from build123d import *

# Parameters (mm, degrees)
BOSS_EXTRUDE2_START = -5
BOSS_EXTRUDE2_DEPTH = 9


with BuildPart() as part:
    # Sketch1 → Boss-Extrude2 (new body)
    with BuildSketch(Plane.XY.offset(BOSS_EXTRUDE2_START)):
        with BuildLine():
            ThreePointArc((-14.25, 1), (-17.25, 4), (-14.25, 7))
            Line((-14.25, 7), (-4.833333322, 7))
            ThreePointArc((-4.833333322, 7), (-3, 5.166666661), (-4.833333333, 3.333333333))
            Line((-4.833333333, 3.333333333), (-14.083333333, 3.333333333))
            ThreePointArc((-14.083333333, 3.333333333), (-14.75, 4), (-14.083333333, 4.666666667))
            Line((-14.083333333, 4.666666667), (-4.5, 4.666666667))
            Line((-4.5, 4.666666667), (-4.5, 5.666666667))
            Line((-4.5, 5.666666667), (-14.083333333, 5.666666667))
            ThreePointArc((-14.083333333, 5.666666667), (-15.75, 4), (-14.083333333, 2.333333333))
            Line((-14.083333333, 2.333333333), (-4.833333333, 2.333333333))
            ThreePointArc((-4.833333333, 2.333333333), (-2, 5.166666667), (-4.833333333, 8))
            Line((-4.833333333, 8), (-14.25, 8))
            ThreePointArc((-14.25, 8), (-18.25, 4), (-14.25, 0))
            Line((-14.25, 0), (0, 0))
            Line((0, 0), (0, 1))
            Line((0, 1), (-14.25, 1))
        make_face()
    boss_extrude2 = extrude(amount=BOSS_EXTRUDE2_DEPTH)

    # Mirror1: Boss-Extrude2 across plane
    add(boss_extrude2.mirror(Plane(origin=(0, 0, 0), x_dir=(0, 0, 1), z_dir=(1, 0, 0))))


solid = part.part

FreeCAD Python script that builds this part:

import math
import FreeCAD as App
import Part
import Sketcher
Q = App.Units.Quantity

doc = App.newDocument("Part")
body = doc.addObject("PartDesign::Body", "Body")

sketch1 = body.newObject("Sketcher::SketchObject", "Sketch")
sketch1.AttachmentSupport = (doc.getObject("XY_Plane"), [""])
sketch1.MapMode = "FlatFace"
sketch1.AttachmentOffset = App.Placement(App.Vector(0, 0, -5), App.Rotation())
sketch1.addGeometry(Part.ArcOfCircle(Part.Circle(App.Vector(-14.25, 4, 0), App.Vector(0, 0, 1), 3), math.radians(90), math.radians(270)), False)
sketch1.addGeometry(Part.LineSegment(App.Vector(-14.25, 7, 0), App.Vector(-4.833333, 7, 0)), False)
sketch1.addGeometry(Part.ArcOfCircle(Part.Circle(App.Vector(-4.833333, 5.166667, 0), App.Vector(0, 0, 1), 1.833333), math.radians(-90), math.radians(90)), False)
sketch1.addGeometry(Part.LineSegment(App.Vector(-4.833333, 3.333333, 0), App.Vector(-14.083333, 3.333333, 0)), False)
sketch1.addGeometry(Part.ArcOfCircle(Part.Circle(App.Vector(-14.083333, 4, 0), App.Vector(0, 0, 1), 0.666667), math.radians(90), math.radians(270)), False)
sketch1.addGeometry(Part.LineSegment(App.Vector(-14.083333, 4.666667, 0), App.Vector(-4.5, 4.666667, 0)), False)
sketch1.addGeometry(Part.LineSegment(App.Vector(-4.5, 4.666667, 0), App.Vector(-4.5, 5.666667, 0)), False)
sketch1.addGeometry(Part.LineSegment(App.Vector(-4.5, 5.666667, 0), App.Vector(-14.083333, 5.666667, 0)), False)
sketch1.addGeometry(Part.ArcOfCircle(Part.Circle(App.Vector(-14.083333, 4, 0), App.Vector(0, 0, 1), 1.666667), math.radians(90), math.radians(270)), False)
sketch1.addGeometry(Part.LineSegment(App.Vector(-14.083333, 2.333333, 0), App.Vector(-4.833333, 2.333333, 0)), False)
sketch1.addGeometry(Part.ArcOfCircle(Part.Circle(App.Vector(-4.833333, 5.166667, 0), App.Vector(0, 0, 1), 2.833333), math.radians(-90), math.radians(90)), False)
sketch1.addGeometry(Part.LineSegment(App.Vector(-4.833333, 8, 0), App.Vector(-14.25, 8, 0)), False)
sketch1.addGeometry(Part.ArcOfCircle(Part.Circle(App.Vector(-14.25, 4, 0), App.Vector(0, 0, 1), 4), math.radians(90), math.radians(270)), False)
sketch1.addGeometry(Part.LineSegment(App.Vector(-14.25, 0, 0), App.Vector(0, 0, 0)), False)
sketch1.addGeometry(Part.LineSegment(App.Vector(0, 0, 0), App.Vector(0, 1, 0)), False)
sketch1.addGeometry(Part.LineSegment(App.Vector(0, 1, 0), App.Vector(-14.25, 1, 0)), False)
sketch1.addConstraint(Sketcher.Constraint("Tangent", 0, 1, 1, 1))
sketch1.addConstraint(Sketcher.Constraint("Tangent", 1, 2, 2, 2))
sketch1.addConstraint(Sketcher.Constraint("Tangent", 2, 1, 3, 1))
sketch1.addConstraint(Sketcher.Constraint("Tangent", 3, 2, 4, 2))
sketch1.addConstraint(Sketcher.Constraint("Tangent", 4, 1, 5, 1))
sketch1.addConstraint(Sketcher.Constraint("Coincident", 5, 2, 6, 1))
sketch1.addConstraint(Sketcher.Constraint("Coincident", 6, 2, 7, 1))
sketch1.addConstraint(Sketcher.Constraint("Tangent", 7, 2, 8, 1))
sketch1.addConstraint(Sketcher.Constraint("Tangent", 8, 2, 9, 1))
sketch1.addConstraint(Sketcher.Constraint("Tangent", 9, 2, 10, 1))
sketch1.addConstraint(Sketcher.Constraint("Tangent", 10, 2, 11, 1))
sketch1.addConstraint(Sketcher.Constraint("Tangent", 11, 2, 12, 1))
sketch1.addConstraint(Sketcher.Constraint("Tangent", 12, 2, 13, 1))
sketch1.addConstraint(Sketcher.Constraint("Coincident", 13, 2, 14, 1))
sketch1.addConstraint(Sketcher.Constraint("Coincident", 14, 2, 15, 1))
sketch1.addConstraint(Sketcher.Constraint("Tangent", 15, 2, 0, 2))
sketch1.addConstraint(Sketcher.Constraint("Horizontal", 1))
sketch1.addConstraint(Sketcher.Constraint("Horizontal", 3))
sketch1.addConstraint(Sketcher.Constraint("Horizontal", 5))
sketch1.addConstraint(Sketcher.Constraint("Vertical", 6))
sketch1.addConstraint(Sketcher.Constraint("Horizontal", 7))
sketch1.addConstraint(Sketcher.Constraint("Horizontal", 9))
sketch1.addConstraint(Sketcher.Constraint("Horizontal", 11))
sketch1.addConstraint(Sketcher.Constraint("Horizontal", 13))
sketch1.addConstraint(Sketcher.Constraint("Vertical", 14))
sketch1.addConstraint(Sketcher.Constraint("Horizontal", 15))
sketch1.addConstraint(Sketcher.Constraint("Coincident", 13, 2, -1, 1))
sketch1.addConstraint(Sketcher.Constraint("Coincident", 8, 3, 4, 3))
sketch1.addConstraint(Sketcher.Constraint("Coincident", 10, 3, 2, 3))
sketch1.addConstraint(Sketcher.Constraint("Coincident", 12, 3, 0, 3))
sketch1.addConstraint(Sketcher.Constraint("Horizontal", 0, 3, 4, 3))
sketch1.addConstraint(Sketcher.Constraint("Radius", 0, Q("3 mm")))
sketch1.addConstraint(Sketcher.Constraint("Radius", 12, Q("4 mm")))
sketch1.addConstraint(Sketcher.Constraint("DistanceX", 3, 2, 3, 1, Q("9.25 mm")))
sketch1.addConstraint(Sketcher.Constraint("DistanceX", 13, 1, 13, 2, Q("14.25 mm")))
sketch1.addConstraint(Sketcher.Constraint("DistanceX", 5, 2, -1, 1, Q("4.5 mm")))
sketch1.addConstraint(Sketcher.Constraint("DistanceY", 5, 2, 2, 3, Q("0.5 mm")))
sketch1.addConstraint(Sketcher.Constraint("DistanceX", 1, 1, 1, 2, Q("9.416667 mm")))
pad1 = body.newObject("PartDesign::Pad", "Pad")
pad1.Profile = sketch1
pad1.Length = 9
doc.recompute()

mirrored = body.newObject("PartDesign::Mirrored", "Mirrored")
mirrored.Originals = [pad1]
mirrored.MirrorPlane = (doc.getObject("YZ_Plane"), [""])
body.Tip = mirrored

doc.recompute()
